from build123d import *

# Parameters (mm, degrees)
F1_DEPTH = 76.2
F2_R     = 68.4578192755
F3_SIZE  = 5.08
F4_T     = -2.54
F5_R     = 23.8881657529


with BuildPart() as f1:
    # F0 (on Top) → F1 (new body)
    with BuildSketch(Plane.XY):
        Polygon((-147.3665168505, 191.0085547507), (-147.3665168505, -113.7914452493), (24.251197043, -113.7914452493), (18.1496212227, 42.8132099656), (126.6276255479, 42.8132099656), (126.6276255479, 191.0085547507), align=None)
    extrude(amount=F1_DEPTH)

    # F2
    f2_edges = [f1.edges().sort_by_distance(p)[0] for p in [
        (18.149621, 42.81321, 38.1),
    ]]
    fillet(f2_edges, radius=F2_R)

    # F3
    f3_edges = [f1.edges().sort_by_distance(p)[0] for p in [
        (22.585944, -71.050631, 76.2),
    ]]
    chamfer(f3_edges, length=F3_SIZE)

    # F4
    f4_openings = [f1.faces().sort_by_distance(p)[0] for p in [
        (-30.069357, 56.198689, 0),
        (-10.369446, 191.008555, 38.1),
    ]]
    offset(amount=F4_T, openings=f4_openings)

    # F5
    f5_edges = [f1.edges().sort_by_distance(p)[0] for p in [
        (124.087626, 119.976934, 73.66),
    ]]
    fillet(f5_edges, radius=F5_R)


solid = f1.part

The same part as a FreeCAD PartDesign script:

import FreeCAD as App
import Part
import Sketcher
Q = App.Units.Quantity


def edges_at(feature, points):
    """Names of the edges that pass closest to the given points."""
    edges = feature.Shape.Edges
    near = lambda p: min(range(len(edges)), key=lambda i: edges[i].distToShape(Part.Vertex(*p))[0])
    return sorted({f"Edge{near(p) + 1}" for p in points})


def faces_at(feature, points):
    """Names of the faces that lie closest to the given points."""
    faces = feature.Shape.Faces
    near = lambda p: min(range(len(faces)), key=lambda i: faces[i].distToShape(Part.Vertex(*p))[0])
    return sorted({f"Face{near(p) + 1}" for p in points})


def add_polygon(sketch, points):
    """Adds a closed chain of lines whose ends are joined by coincident constraints."""
    first, n = sketch.GeometryCount, len(points)
    for a, b in zip(points, points[1:] + points[:1]):
        sketch.addGeometry(Part.LineSegment(App.Vector(*a, 0), App.Vector(*b, 0)), False)
    for i in range(n):
        sketch.addConstraint(Sketcher.Constraint("Coincident", first + i, 2, first + (i + 1) % n, 1))

doc = App.newDocument("Part")
body = doc.addObject("PartDesign::Body", "Body")

# Sketch on XY plane
sketch1 = body.newObject("Sketcher::SketchObject", "Sketch")
sketch1.AttachmentSupport = (doc.getObject("XY_Plane"), [""])
sketch1.MapMode = "FlatFace"
add_polygon(sketch1, [(-147, 191), (-147, -114), (24, -114), (18, 43), (127, 43), (127, 191)])  # lines 0-5
sketch1.addConstraint([
    Sketcher.Constraint("Vertical", 0),
    Sketcher.Constraint("Horizontal", 1),
    Sketcher.Constraint("Horizontal", 3),
    Sketcher.Constraint("Vertical", 4),
    Sketcher.Constraint("Horizontal", 5),
    Sketcher.Constraint("DistanceY", 0, 2, 0, 1, Q("12 in")),
    Sketcher.Constraint("DistanceX", 1, 1, 1, 2, 171.617714),
    Sketcher.Constraint("DistanceX", 3, 1, 3, 2, 108.478004),
    Sketcher.Constraint("DistanceX", 5, 2, 5, 1, 273.994142),
    Sketcher.Constraint("DistanceY", 4, 1, 4, 2, 148.195345),
    Sketcher.Constraint("DistanceX", -1, 1, 2, 2, 18.149621),
    Sketcher.Constraint("DistanceY", -1, 1, 2, 2, 42.81321),
])
pad1 = body.newObject("PartDesign::Pad", "Pad")
pad1.Profile = sketch1
pad1.Length = Q("3 in")
doc.recompute()

fillet = body.newObject("PartDesign::Fillet", "Fillet")
fillet.Base = (pad1, edges_at(pad1, [(18.15, 42.813, 38.1)]))
fillet.Radius = 68.457819
doc.recompute()

chamfer = body.newObject("PartDesign::Chamfer", "Chamfer")
chamfer.Base = (fillet, edges_at(fillet, [(22.586, -71.051, 76.2)]))
chamfer.Size = Q("0.2 in")
doc.recompute()

thickness = body.newObject("PartDesign::Thickness", "Thickness")
thickness.Base = (chamfer, faces_at(chamfer, [(-10.369, 38.609, 0), (-10.369, 191.009, 38.1)]))
thickness.Value = Q("0.1 in")
thickness.Reversed = True
thickness.Join = "Arc"
doc.recompute()

fillet2 = body.newObject("PartDesign::Fillet", "Fillet001")
fillet2.Base = (thickness, edges_at(thickness, [(124.088, 119.977, 73.66)]))
fillet2.Radius = 23.888166

doc.recompute()
